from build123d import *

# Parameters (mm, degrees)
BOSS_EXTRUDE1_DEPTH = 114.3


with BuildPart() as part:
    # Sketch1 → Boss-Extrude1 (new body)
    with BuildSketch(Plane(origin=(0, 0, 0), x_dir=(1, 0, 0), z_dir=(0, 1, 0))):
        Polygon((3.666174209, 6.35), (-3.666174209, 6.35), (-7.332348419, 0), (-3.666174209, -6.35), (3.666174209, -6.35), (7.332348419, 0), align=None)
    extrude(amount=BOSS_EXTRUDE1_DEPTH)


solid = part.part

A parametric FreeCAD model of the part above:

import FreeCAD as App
import Part
import Sketcher
Q = App.Units.Quantity

doc = App.newDocument("Part")
body = doc.addObject("PartDesign::Body", "Body")

# Sketch on XZ plane
sketch1 = body.newObject("Sketcher::SketchObject", "Sketch")
sketch1.AttachmentSupport = (doc.getObject("XZ_Plane"), [""])
sketch1.MapMode = "FlatFace"
sketch1.addGeometry([
    Part.LineSegment(App.Vector(4, -6, 0), App.Vector(-4, -6, 0)),  # 0
    Part.LineSegment(App.Vector(-4, -6, 0), App.Vector(-7, 0, 0)),  # 1
    Part.LineSegment(App.Vector(-7, 0, 0), App.Vector(-4, 6, 0)),  # 2
    Part.LineSegment(App.Vector(-4, 6, 0), App.Vector(4, 6, 0)),  # 3
    Part.LineSegment(App.Vector(4, 6, 0), App.Vector(7, 0, 0)),  # 4
    Part.LineSegment(App.Vector(7, 0, 0), App.Vector(4, -6, 0)),  # 5
], False)
sketch1.addConstraint([
    Sketcher.Constraint("Coincident", 0, 2, 1, 1),
    Sketcher.Constraint("Coincident", 1, 2, 2, 1),
    Sketcher.Constraint("Coincident", 2, 2, 3, 1),
    Sketcher.Constraint("Coincident", 3, 2, 4, 1),
    Sketcher.Constraint("Coincident", 4, 2, 5, 1),
    Sketcher.Constraint("Coincident", 5, 2, 0, 1),
    Sketcher.Constraint("Horizontal", 0),
    Sketcher.Constraint("Horizontal", 3),
    Sketcher.Constraint("Symmetric", 0, 2, 3, 2, -1, 1),
    Sketcher.Constraint("Symmetric", 1, 2, 4, 2, -1, 1),
    Sketcher.Constraint("PointOnObject", 1, 2, -1),
    Sketcher.Constraint("Parallel", 2, 5),
    Sketcher.Constraint("Vertical", 0, 2, 2, 2),
    Sketcher.Constraint("Angle", 1, Q("120 deg")),
    Sketcher.Constraint("DistanceY", 0, 2, 2, 2, Q("0.5 in")),
    Sketcher.Constraint("DistanceX", 0, 2, 0, 1, Q("7.332348 mm")),
])
pad1 = body.newObject("PartDesign::Pad", "Pad")
pad1.Profile = sketch1
pad1.Length = Q("4.5 in")
pad1.Reversed = True

doc.recompute()
